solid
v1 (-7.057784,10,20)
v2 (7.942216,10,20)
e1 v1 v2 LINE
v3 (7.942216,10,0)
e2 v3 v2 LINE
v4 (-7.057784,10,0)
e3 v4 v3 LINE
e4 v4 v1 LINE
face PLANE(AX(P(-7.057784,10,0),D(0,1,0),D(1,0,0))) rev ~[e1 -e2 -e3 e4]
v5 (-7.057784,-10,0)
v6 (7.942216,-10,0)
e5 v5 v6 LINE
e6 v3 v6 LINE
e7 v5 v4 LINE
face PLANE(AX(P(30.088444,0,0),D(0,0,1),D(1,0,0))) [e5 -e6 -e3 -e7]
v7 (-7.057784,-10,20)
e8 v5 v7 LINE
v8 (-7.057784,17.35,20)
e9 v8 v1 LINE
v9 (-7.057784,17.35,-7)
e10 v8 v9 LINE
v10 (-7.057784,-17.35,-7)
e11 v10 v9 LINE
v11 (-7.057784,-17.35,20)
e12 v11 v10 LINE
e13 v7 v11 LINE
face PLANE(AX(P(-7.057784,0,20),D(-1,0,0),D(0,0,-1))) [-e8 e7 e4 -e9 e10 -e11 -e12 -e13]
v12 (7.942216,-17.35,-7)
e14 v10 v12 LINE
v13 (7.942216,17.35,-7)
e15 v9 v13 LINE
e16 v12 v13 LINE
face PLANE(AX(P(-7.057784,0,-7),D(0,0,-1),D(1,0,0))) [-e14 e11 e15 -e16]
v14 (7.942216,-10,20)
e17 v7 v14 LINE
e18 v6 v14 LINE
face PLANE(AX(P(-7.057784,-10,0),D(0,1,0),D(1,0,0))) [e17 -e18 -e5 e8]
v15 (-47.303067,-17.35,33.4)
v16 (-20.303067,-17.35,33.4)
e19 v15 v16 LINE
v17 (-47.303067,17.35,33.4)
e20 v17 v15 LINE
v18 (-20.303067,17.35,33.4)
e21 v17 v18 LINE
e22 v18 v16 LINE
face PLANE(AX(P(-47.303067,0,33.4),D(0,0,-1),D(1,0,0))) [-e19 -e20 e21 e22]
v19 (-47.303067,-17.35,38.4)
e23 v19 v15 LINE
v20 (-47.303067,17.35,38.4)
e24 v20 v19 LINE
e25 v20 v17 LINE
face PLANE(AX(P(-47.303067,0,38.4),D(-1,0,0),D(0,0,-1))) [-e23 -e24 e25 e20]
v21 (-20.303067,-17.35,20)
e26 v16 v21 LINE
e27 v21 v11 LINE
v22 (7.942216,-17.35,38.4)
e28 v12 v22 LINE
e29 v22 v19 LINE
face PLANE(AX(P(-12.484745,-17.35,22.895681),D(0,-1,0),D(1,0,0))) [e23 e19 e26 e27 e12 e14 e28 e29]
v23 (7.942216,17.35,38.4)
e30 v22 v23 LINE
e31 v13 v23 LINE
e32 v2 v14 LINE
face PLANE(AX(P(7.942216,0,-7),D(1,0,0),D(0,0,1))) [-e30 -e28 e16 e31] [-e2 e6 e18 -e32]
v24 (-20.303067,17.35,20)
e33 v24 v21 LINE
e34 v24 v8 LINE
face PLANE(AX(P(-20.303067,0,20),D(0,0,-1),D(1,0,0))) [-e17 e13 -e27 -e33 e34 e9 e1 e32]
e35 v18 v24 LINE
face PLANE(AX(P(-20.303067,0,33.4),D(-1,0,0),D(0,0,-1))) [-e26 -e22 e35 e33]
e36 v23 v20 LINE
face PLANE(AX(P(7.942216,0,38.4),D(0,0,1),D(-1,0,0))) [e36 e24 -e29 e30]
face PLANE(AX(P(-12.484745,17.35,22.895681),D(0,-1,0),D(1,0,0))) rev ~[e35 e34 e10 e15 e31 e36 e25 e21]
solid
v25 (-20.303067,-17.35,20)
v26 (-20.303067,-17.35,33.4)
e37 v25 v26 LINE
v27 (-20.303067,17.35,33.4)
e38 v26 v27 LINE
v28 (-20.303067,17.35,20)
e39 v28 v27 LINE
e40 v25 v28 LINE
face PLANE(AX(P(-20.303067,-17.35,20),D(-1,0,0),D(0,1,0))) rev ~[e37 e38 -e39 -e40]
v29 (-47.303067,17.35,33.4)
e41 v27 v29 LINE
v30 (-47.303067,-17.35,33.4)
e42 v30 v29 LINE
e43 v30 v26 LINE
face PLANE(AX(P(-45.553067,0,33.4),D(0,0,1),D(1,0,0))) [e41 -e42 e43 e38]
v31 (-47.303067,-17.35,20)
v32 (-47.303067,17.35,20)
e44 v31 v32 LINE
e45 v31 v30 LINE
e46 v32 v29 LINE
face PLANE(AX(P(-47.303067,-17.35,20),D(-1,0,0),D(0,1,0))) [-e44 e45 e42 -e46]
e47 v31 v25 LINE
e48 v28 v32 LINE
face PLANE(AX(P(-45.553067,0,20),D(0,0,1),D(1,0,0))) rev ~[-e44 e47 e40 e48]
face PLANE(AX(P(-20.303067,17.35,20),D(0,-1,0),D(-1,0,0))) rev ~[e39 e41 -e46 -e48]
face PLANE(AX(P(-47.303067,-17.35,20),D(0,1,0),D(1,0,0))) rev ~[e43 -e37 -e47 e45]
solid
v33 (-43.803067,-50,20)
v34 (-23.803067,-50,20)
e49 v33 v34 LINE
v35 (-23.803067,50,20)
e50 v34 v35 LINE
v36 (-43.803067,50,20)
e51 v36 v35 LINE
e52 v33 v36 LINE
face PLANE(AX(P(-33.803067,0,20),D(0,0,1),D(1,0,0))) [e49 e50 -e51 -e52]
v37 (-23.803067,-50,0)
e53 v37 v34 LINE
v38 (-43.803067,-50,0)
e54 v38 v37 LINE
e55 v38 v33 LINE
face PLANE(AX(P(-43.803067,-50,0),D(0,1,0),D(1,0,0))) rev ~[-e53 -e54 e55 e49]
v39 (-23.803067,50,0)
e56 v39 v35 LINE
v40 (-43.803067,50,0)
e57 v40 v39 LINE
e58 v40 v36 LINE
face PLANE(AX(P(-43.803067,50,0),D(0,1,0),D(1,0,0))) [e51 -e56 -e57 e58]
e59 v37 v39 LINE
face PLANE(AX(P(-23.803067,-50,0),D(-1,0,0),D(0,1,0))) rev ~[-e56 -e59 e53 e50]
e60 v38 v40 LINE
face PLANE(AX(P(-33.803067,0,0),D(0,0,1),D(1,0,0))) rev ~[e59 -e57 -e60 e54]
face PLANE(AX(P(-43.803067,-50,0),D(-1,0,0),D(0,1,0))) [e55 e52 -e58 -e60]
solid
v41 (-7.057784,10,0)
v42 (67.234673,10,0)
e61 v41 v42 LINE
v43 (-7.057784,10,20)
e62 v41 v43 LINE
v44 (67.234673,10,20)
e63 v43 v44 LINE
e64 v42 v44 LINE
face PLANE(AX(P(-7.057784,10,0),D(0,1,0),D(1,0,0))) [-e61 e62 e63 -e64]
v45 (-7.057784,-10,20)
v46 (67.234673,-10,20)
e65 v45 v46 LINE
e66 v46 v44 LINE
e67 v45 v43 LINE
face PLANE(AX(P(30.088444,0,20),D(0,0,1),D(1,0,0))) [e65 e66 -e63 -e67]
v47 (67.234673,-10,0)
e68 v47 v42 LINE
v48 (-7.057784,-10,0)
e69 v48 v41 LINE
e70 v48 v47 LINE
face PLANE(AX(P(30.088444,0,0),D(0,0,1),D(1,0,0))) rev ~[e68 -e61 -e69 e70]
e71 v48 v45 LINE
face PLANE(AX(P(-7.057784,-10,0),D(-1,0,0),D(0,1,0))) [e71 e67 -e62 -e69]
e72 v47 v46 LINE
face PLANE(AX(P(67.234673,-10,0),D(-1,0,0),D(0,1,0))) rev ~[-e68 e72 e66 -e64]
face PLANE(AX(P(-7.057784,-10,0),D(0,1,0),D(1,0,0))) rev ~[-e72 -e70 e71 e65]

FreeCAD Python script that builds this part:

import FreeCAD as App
import Part
import Sketcher
Q = App.Units.Quantity


def add_polygon(sketch, points):
    """Adds a closed chain of lines whose ends are joined by coincident constraints."""
    first, n = sketch.GeometryCount, len(points)
    for a, b in zip(points, points[1:] + points[:1]):
        sketch.addGeometry(Part.LineSegment(App.Vector(*a, 0), App.Vector(*b, 0)), False)
    for i in range(n):
        sketch.addConstraint(Sketcher.Constraint("Coincident", first + i, 2, first + (i + 1) % n, 1))

doc = App.newDocument("Part")
body = doc.addObject("PartDesign::Body", "Body")

sketch1 = body.newObject("Sketcher::SketchObject", "Sketch")
sketch1.AttachmentSupport = (doc.getObject("XY_Plane"), [""])
sketch1.MapMode = "FlatFace"
add_polygon(sketch1, [(-44, 50), (-44, -50), (-24, -50), (-24, 50)])
sketch1.addConstraint(Sketcher.Constraint("Vertical", 0))
sketch1.addConstraint(Sketcher.Constraint("Horizontal", 1))
sketch1.addConstraint(Sketcher.Constraint("Vertical", 2))
sketch1.addConstraint(Sketcher.Constraint("Horizontal", 3))
sketch1.addConstraint(Sketcher.Constraint("DistanceX", 1, 1, 1, 2, Q("20 mm")))
sketch1.addConstraint(Sketcher.Constraint("DistanceY", 0, 2, 0, 1, Q("100 mm")))
sketch1.addConstraint(Sketcher.Constraint("DistanceY", 0, 2, -1, 1, Q("50 mm")))
sketch1.addConstraint(Sketcher.Constraint("DistanceX", 0, 2, -1, 1, Q("43.803067 mm")))
pad1 = body.newObject("PartDesign::Pad", "Pad")
pad1.Profile = sketch1
pad1.Length = 20
body2 = doc.addObject("PartDesign::Body", "Body001")

sketch2 = body2.newObject("Sketcher::SketchObject", "Sketch001")
sketch2.AttachmentSupport = (doc.getObject("XY_Plane001"), [""])
sketch2.MapMode = "FlatFace"
add_polygon(sketch2, [(-7, 10), (-7, -10), (67, -10), (67, 10)])
sketch2.addConstraint(Sketcher.Constraint("Vertical", 0))
sketch2.addConstraint(Sketcher.Constraint("Horizontal", 1))
sketch2.addConstraint(Sketcher.Constraint("Vertical", 2))
sketch2.addConstraint(Sketcher.Constraint("Horizontal", 3))
sketch2.addConstraint(Sketcher.Constraint("DistanceY", 0, 2, 0, 1, Q("20 mm")))
sketch2.addConstraint(Sketcher.Constraint("DistanceY", 0, 2, -1, 1, Q("10 mm")))
sketch2.addConstraint(Sketcher.Constraint("DistanceX", 1, 1, 1, 2, Q("74.292456 mm")))
sketch2.addConstraint(Sketcher.Constraint("DistanceX", 0, 2, -1, 1, Q("7.057784 mm")))
pad2 = body2.newObject("PartDesign::Pad", "Pad001")
pad2.Profile = sketch2
pad2.Length = 20
body3 = doc.addObject("PartDesign::Body", "Body002")

sketch3 = body3.newObject("Sketcher::SketchObject", "Sketch002")
sketch3.AttachmentSupport = (doc.getObject("XY_Plane002"), [""])
sketch3.MapMode = "FlatFace"
sketch3.AttachmentOffset = App.Placement(App.Vector(0, 0, 20), App.Rotation())
add_polygon(sketch3, [(-47, 17), (-47, -17), (-20, -17), (-20, 17)])
sketch3.addConstraint(Sketcher.Constraint("Vertical", 0))
sketch3.addConstraint(Sketcher.Constraint("Horizontal", 1))
sketch3.addConstraint(Sketcher.Constraint("Vertical", 2))
sketch3.addConstraint(Sketcher.Constraint("Horizontal", 3))
sketch3.addConstraint(Sketcher.Constraint("DistanceX", 1, 1, 1, 2, Q("27 mm")))
sketch3.addConstraint(Sketcher.Constraint("DistanceY", 0, 2, 0, 1, Q("34.7 mm")))
sketch3.addConstraint(Sketcher.Constraint("DistanceY", 0, 2, -1, 1, Q("17.35 mm")))
sketch3.addConstraint(Sketcher.Constraint("DistanceX", 0, 2, -1, 1, Q("47.303067 mm")))
pad3 = body3.newObject("PartDesign::Pad", "Pad002")
pad3.Profile = sketch3
pad3.Length = 13.4
body4 = doc.addObject("PartDesign::Body", "Body003")

sketch4 = body4.newObject("Sketcher::SketchObject", "Sketch003")
sketch4.AttachmentSupport = (doc.getObject("XZ_Plane003"), [""])
sketch4.MapMode = "FlatFace"
add_polygon(sketch4, [(8, 38), (-47, 38), (-47, 33), (-20, 33), (-20, 20), (-7, 20), (-7, -7), (8, -7)])
sketch4.addConstraint(Sketcher.Constraint("Horizontal", 0))
sketch4.addConstraint(Sketcher.Constraint("Vertical", 1))
sketch4.addConstraint(Sketcher.Constraint("Horizontal", 2))
sketch4.addConstraint(Sketcher.Constraint("Vertical", 3))
sketch4.addConstraint(Sketcher.Constraint("Horizontal", 4))
sketch4.addConstraint(Sketcher.Constraint("Vertical", 5))
sketch4.addConstraint(Sketcher.Constraint("Horizontal", 6))
sketch4.addConstraint(Sketcher.Constraint("Vertical", 7))
sketch4.addConstraint(Sketcher.Constraint("Equal", 2, 5))
sketch4.addConstraint(Sketcher.Constraint("DistanceX", 2, 1, 2, 2, Q("27 mm")))
sketch4.addConstraint(Sketcher.Constraint("DistanceX", 6, 1, 6, 2, Q("15 mm")))
sketch4.addConstraint(Sketcher.Constraint("DistanceY", 1, 2, 1, 1, Q("5 mm")))
sketch4.addConstraint(Sketcher.Constraint("DistanceY", 3, 2, 3, 1, Q("13.4 mm")))
sketch4.addConstraint(Sketcher.Constraint("DistanceY", -1, 1, 3, 2, Q("20 mm")))
sketch4.addConstraint(Sketcher.Constraint("DistanceX", 0, 2, 0, 1, Q("55.245284 mm")))
sketch4.addConstraint(Sketcher.Constraint("DistanceX", 0, 2, -1, 1, Q("47.303067 mm")))
pad4 = body4.newObject("PartDesign::Pad", "Pad003")
pad4.Profile = sketch4
pad4.Type = "TwoLengths"
pad4.Length = 17.35
pad4.Length2 = 17.35
doc.recompute()

body5 = doc.addObject("PartDesign::Body", "Body004")
body5.BaseFeature = body2
boolean = body4.newObject("PartDesign::Boolean", "Boolean")
boolean.Type = "Cut"
boolean.addObjects([body5])
doc.recompute()

doc.recompute()
